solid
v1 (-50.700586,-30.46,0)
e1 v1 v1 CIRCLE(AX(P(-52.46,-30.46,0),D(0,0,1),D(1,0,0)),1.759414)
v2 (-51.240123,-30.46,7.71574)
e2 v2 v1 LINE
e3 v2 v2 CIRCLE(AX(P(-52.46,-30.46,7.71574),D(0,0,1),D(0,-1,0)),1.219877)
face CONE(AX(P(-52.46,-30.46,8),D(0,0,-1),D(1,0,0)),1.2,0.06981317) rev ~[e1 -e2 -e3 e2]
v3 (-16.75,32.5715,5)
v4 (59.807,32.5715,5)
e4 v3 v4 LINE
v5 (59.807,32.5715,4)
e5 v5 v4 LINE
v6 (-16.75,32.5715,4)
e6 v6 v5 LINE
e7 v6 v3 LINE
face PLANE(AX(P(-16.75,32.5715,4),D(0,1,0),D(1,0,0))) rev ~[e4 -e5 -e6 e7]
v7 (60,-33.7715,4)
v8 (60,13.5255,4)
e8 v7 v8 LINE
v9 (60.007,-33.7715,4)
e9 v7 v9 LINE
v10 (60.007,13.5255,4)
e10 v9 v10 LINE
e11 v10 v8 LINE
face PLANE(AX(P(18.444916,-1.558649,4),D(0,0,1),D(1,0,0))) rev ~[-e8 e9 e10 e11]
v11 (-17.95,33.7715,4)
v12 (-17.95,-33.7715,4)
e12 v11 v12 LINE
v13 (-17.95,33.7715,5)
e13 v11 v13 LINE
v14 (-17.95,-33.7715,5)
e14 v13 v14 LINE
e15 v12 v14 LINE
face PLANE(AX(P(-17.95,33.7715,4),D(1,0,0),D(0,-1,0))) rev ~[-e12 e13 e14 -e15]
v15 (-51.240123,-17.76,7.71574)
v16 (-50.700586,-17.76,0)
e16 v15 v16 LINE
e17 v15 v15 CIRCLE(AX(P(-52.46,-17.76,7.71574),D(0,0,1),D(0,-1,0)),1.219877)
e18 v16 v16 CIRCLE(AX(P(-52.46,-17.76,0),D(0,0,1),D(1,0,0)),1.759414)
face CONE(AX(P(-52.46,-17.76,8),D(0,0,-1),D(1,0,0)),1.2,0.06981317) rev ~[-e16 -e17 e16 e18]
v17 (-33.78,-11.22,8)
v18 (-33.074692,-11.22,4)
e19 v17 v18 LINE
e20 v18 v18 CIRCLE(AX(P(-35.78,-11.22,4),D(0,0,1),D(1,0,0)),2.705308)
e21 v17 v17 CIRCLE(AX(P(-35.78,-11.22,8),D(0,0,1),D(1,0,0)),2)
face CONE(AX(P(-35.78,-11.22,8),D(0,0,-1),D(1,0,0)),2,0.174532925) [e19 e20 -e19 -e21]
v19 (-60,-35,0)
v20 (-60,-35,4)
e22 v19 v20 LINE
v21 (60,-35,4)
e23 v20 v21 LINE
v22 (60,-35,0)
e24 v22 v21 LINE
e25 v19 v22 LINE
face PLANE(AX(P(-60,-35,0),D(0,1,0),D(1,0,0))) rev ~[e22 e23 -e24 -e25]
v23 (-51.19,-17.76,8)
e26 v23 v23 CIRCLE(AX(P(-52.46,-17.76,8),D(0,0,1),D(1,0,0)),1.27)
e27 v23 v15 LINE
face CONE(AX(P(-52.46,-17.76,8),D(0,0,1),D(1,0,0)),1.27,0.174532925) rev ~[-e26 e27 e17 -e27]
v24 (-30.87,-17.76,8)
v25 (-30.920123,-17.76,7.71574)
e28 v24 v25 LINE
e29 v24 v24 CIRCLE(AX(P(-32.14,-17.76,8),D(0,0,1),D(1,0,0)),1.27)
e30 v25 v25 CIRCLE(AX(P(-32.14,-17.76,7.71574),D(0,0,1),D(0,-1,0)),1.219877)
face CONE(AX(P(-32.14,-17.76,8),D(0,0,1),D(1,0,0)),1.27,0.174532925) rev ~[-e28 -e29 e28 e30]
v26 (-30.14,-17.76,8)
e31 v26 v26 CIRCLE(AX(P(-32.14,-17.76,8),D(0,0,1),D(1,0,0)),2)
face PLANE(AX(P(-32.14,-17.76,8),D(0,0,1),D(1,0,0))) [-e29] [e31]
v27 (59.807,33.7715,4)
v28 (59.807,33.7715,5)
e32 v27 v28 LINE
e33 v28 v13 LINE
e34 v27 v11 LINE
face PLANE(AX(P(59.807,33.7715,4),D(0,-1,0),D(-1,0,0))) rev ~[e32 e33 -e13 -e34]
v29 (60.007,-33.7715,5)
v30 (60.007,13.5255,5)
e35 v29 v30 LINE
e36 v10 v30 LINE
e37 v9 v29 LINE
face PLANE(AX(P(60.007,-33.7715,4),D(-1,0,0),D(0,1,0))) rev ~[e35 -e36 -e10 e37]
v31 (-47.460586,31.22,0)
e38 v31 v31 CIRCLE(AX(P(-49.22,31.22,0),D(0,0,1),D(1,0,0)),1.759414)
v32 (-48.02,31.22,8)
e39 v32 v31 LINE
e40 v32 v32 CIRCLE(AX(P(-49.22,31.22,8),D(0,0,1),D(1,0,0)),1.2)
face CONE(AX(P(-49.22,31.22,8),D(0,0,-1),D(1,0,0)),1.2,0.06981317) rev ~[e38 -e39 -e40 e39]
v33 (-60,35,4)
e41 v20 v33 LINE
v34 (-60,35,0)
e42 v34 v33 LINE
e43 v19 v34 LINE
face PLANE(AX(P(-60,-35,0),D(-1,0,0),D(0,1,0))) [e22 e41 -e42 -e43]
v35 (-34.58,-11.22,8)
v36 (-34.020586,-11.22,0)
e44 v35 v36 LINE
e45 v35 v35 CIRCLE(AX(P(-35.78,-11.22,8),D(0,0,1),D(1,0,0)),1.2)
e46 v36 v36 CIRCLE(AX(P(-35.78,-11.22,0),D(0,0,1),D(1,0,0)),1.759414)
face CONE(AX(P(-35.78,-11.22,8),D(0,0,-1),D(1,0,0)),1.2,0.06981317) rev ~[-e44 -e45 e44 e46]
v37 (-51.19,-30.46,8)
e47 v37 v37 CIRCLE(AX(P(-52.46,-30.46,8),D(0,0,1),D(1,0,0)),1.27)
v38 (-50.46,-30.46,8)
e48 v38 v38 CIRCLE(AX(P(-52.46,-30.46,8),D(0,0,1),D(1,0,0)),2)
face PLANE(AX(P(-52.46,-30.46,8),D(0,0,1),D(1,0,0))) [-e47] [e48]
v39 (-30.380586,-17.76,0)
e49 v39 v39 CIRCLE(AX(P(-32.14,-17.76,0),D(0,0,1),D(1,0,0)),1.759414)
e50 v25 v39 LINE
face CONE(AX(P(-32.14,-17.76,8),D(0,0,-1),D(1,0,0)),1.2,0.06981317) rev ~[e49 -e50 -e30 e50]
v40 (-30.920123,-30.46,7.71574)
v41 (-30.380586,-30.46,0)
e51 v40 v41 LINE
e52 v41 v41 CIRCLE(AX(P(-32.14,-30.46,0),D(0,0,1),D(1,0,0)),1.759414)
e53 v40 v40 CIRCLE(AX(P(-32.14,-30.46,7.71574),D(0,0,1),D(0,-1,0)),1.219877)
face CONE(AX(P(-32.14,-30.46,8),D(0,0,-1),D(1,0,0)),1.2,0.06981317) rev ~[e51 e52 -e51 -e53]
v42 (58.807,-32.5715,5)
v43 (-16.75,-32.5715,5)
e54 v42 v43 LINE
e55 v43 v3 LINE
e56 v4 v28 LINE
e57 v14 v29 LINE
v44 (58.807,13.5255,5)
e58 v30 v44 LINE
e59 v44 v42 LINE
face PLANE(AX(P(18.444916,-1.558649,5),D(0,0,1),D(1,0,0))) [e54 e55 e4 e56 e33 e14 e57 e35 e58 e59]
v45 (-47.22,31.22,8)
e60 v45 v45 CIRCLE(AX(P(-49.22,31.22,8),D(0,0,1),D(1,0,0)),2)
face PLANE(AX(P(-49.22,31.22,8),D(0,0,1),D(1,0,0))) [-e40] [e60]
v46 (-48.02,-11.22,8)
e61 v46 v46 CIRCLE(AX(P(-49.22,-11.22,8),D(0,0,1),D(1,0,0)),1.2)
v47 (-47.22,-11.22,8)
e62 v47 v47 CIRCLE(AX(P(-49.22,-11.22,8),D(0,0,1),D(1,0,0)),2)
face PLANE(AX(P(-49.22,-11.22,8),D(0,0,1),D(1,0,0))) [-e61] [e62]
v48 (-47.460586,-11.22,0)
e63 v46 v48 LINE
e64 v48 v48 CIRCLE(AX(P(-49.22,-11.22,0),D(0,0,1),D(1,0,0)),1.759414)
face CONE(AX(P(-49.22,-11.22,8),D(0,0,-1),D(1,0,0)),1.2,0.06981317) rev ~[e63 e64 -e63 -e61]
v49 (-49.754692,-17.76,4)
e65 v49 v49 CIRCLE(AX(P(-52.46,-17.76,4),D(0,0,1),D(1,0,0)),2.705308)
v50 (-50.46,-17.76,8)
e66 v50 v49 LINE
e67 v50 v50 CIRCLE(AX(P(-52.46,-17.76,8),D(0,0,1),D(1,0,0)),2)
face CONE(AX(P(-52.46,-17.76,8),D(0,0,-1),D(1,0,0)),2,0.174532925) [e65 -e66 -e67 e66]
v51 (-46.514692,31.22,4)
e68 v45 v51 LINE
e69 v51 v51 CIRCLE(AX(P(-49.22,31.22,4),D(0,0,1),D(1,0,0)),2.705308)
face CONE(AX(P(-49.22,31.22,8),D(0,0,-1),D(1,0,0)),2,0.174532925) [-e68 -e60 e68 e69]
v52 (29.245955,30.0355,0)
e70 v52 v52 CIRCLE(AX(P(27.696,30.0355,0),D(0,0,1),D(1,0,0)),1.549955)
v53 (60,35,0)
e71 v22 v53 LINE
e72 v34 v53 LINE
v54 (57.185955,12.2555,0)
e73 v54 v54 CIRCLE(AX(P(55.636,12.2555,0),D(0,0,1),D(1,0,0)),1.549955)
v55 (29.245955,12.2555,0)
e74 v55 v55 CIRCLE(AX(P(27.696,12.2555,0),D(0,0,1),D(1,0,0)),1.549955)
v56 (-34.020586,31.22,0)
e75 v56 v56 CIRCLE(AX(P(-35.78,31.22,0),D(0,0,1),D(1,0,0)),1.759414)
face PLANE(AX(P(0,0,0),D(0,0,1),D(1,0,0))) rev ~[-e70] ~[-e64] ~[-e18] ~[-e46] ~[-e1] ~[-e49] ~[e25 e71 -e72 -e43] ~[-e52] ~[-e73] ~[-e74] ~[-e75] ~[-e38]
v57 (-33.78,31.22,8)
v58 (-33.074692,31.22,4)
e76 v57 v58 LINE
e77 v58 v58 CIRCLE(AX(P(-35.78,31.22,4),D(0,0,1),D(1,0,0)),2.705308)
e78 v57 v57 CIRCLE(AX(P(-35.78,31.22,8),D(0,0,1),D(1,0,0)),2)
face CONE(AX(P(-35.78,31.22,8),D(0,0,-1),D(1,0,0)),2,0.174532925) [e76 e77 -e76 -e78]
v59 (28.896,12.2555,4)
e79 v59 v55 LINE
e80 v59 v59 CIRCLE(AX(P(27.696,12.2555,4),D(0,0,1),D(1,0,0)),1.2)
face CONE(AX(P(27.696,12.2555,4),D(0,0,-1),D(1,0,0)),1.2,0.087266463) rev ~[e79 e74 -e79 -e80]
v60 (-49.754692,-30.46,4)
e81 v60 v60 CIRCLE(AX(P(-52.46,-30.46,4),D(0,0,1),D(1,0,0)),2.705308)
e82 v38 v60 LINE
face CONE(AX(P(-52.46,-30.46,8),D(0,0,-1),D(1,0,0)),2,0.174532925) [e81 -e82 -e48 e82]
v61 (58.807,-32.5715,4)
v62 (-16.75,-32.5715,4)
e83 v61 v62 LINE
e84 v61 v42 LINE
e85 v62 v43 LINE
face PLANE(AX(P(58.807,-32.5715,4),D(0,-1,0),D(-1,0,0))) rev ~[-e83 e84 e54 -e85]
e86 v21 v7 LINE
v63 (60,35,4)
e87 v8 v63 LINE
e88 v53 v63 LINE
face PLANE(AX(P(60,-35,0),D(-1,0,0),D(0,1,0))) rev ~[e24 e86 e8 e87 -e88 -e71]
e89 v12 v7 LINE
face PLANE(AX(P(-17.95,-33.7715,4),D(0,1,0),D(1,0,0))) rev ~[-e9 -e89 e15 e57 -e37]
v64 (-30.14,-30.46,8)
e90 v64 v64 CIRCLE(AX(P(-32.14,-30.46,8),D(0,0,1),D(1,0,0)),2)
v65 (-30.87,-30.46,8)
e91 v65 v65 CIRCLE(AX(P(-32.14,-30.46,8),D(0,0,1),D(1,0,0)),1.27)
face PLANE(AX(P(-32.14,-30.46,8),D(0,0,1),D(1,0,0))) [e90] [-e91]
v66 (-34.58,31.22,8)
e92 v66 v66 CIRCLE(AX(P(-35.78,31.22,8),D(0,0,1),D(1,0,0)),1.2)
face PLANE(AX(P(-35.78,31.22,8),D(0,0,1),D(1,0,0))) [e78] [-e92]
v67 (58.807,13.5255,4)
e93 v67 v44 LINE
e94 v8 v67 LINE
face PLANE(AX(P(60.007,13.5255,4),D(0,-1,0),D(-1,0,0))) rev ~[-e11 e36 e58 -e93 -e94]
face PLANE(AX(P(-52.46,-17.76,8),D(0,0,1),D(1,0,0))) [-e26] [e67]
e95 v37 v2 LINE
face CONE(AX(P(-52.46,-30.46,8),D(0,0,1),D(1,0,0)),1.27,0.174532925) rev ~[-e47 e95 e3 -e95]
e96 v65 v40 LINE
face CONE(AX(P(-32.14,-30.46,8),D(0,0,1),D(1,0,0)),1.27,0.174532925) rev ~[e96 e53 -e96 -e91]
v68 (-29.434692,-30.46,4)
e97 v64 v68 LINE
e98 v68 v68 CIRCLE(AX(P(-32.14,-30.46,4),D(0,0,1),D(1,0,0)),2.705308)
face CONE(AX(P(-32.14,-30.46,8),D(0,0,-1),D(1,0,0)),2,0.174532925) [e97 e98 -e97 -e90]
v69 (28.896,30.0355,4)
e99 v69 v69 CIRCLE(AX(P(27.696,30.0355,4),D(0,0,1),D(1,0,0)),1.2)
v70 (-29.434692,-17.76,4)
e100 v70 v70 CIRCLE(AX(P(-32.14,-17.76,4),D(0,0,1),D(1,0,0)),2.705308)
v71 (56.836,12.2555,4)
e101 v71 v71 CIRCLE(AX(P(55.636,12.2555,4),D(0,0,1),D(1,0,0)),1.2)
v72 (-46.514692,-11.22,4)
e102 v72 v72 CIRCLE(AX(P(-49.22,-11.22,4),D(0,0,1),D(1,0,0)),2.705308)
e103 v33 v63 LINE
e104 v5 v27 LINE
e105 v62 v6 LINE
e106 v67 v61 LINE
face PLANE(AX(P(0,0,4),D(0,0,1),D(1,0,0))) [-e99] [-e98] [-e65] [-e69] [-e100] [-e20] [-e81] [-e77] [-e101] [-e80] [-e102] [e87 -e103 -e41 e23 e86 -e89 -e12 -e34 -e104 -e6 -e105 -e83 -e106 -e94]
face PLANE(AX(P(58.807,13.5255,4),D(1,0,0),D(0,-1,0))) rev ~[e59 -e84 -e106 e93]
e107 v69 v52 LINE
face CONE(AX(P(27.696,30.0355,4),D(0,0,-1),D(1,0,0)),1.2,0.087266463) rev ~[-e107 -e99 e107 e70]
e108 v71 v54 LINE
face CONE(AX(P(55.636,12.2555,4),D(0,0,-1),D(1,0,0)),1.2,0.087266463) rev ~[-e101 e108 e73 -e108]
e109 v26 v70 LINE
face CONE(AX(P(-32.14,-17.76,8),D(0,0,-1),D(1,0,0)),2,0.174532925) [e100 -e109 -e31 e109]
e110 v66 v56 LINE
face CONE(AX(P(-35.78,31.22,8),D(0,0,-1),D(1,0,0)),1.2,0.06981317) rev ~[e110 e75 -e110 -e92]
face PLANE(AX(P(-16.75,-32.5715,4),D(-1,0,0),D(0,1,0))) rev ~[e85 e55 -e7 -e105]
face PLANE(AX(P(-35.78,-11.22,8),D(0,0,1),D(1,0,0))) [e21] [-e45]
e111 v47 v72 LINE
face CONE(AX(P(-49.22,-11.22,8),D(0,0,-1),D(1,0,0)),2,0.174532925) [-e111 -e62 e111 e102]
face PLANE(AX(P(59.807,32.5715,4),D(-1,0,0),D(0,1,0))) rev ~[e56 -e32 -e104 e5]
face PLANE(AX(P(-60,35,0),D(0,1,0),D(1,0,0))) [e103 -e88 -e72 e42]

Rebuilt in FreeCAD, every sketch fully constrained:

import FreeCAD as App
import Part
import Sketcher

V = App.Vector


def faces_at(feature, points):
    """Names of the faces that lie closest to the given points."""
    faces = feature.Shape.Faces
    near = lambda p: min(range(len(faces)), key=lambda i: faces[i].distToShape(Part.Vertex(*p))[0])
    return sorted({f"Face{near(p) + 1}" for p in points})

doc = App.newDocument("Part")
params = doc.addObject("Spreadsheet::Sheet", "Params")
for row, (alias, value) in enumerate([
    ("sketch1_width", "120 mm"),
    ("sketch1_height", "70 mm"),
    ("pad1_length", "4 mm"),
    ("sketch2_width", "1.2 mm"),
    ("pad2_length", "1 mm"),
    ("sketch3_diameter", "4 mm"),
    ("sketch3_diameter2", "2.54 mm"),
    ("pad3_length", "5 mm"),
    ("draft_angle", "10 deg"),
    ("sketch4_diameter", "4 mm"),
    ("sketch4_diameter2", "2.54 mm"),
    ("pad4_length", "5 mm"),
    ("draft2_angle", "10 deg"),
    ("sketch5_diameter", "4 mm"),
    ("sketch5_diameter2", "2.54 mm"),
    ("pad5_length", "5 mm"),
    ("draft3_angle", "10 deg"),
    ("sketch6_diameter", "4 mm"),
    ("sketch6_diameter2", "2.54 mm"),
    ("pad6_length", "5 mm"),
    ("draft4_angle", "10 deg"),
    ("sketch7_diameter", "4 mm"),
    ("sketch7_diameter2", "2.2 mm"),
    ("pad7_length", "5 mm"),
    ("draft5_angle", "10 deg"),
    ("sketch8_diameter", "4 mm"),
    ("sketch8_diameter2", "2.2 mm"),
    ("pad8_length", "5 mm"),
    ("draft6_angle", "10 deg"),
    ("sketch9_diameter", "4 mm"),
    ("sketch9_diameter2", "2.2 mm"),
    ("pad9_length", "5 mm"),
    ("draft7_angle", "10 deg"),
    ("sketch10_diameter", "4 mm"),
    ("sketch10_diameter2", "2.2 mm"),
    ("pad10_length", "5 mm"),
    ("draft8_angle", "10 deg"),
    ("sketch11_diameter", "2.4 mm"),
    ("pad11_length", "70.927391 mm"),
    ("draft9_angle", "4 deg"),
    ("sketch12_diameter", "2.4 mm"),
    ("pad12_length", "70.927391 mm"),
    ("draft10_angle", "4 deg"),
    ("sketch13_diameter", "2.4 mm"),
    ("pad13_length", "70.927391 mm"),
    ("draft11_angle", "4 deg"),
    ("sketch14_diameter", "2.4 mm"),
    ("pad14_length", "70.927391 mm"),
    ("draft12_angle", "4 deg"),
    ("sketch15_diameter", "2.4 mm"),
    ("pad15_length", "70.927391 mm"),
    ("draft13_angle", "4 deg"),
    ("sketch16_diameter", "2.4 mm"),
    ("pad16_length", "70.927391 mm"),
    ("draft14_angle", "4 deg"),
    ("sketch17_diameter", "2.4 mm"),
    ("pad17_length", "70.927391 mm"),
    ("draft15_angle", "4 deg"),
    ("sketch18_diameter", "2.4 mm"),
    ("pad18_length", "70.927391 mm"),
    ("draft16_angle", "4 deg"),
    ("sketch19_diameter", "2.4 mm"),
    ("pad19_length", "70.583332 mm"),
    ("draft17_angle", "5 deg"),
    ("sketch20_diameter", "2.4 mm"),
    ("pad20_length", "70.583332 mm"),
    ("draft18_angle", "5 deg"),
    ("sketch21_diameter", "2.4 mm"),
    ("pad21_length", "70.583332 mm"),
    ("draft19_angle", "5 deg"),
], start=1):
    params.set(f"A{row}", alias)
    params.set(f"B{row}", "=" + value)
    params.setAlias(f"B{row}", alias)

body = doc.addObject("PartDesign::Body", "Body")

# Sketch on XY plane
sketch1 = body.newObject("Sketcher::SketchObject", "Sketch")
sketch1.AttachmentSupport = (doc.getObject("XY_Plane"), [""])
sketch1.MapMode = "FlatFace"
sketch1.addGeometry([
    Part.LineSegment(V(-60, 35, 0), V(-60, -35, 0)),
    Part.LineSegment(V(-60, -35, 0), V(60, -35, 0)),
    Part.LineSegment(V(60, -35, 0), V(60, 35, 0)),
    Part.LineSegment(V(60, 35, 0), V(-60, 35, 0)),
], False)
sketch1.addConstraint([
    Sketcher.Constraint("Coincident", 0, 2, 1, 1),
    Sketcher.Constraint("Coincident", 1, 2, 2, 1),
    Sketcher.Constraint("Coincident", 2, 2, 3, 1),
    Sketcher.Constraint("Coincident", 3, 2, 0, 1),
    Sketcher.Constraint("Vertical", 0),
    Sketcher.Constraint("Horizontal", 1),
    Sketcher.Constraint("Vertical", 2),
    Sketcher.Constraint("Horizontal", 3),
    Sketcher.Constraint("Symmetric", 0, 2, 2, 2, -1, 1),
    Sketcher.Constraint("DistanceX", 1, 1, 1, 2, 120.0),
    Sketcher.Constraint("DistanceY", 0, 2, 0, 1, 70.0),
])
sketch1.setExpression("Constraints[9]", "Params.sketch1_width")
sketch1.setExpression("Constraints[10]", "Params.sketch1_height")
pad1 = body.newObject("PartDesign::Pad", "Pad")
pad1.Profile = sketch1
pad1.setExpression("Length", "Params.pad1_length")

# Sketch on XY plane
sketch2 = body.newObject("Sketcher::SketchObject", "Sketch001")
sketch2.AttachmentSupport = (doc.getObject("XY_Plane"), [""])
sketch2.MapMode = "FlatFace"
sketch2.AttachmentOffset = App.Placement(V(0, 0, 4), App.Rotation())
sketch2.addGeometry([
    Part.LineSegment(V(59.8, 33.8, 0), V(-17.9, 33.8, 0)),  # 0
    Part.LineSegment(V(-17.9, 33.8, 0), V(-17.9, -33.8, 0)),  # 1
    Part.LineSegment(V(-17.9, -33.8, 0), V(60, -33.8, 0)),  # 2
    Part.LineSegment(V(60, -33.8, 0), V(60, 13.5, 0)),  # 3
    Part.LineSegment(V(60, 13.5, 0), V(58.8, 13.5, 0)),  # 4
    Part.LineSegment(V(58.8, 13.5, 0), V(58.8, -32.6, 0)),  # 5
    Part.LineSegment(V(58.8, -32.6, 0), V(-16.8, -32.6, 0)),  # 6
    Part.LineSegment(V(-16.8, -32.6, 0), V(-16.8, 32.6, 0)),  # 7
    Part.LineSegment(V(-16.8, 32.6, 0), V(59.8, 32.6, 0)),  # 8
    Part.LineSegment(V(59.8, 32.6, 0), V(59.8, 33.8, 0)),  # 9
], False)
sketch2.addConstraint([
    Sketcher.Constraint("Coincident", 0, 2, 1, 1),
    Sketcher.Constraint("Coincident", 1, 2, 2, 1),
    Sketcher.Constraint("Coincident", 2, 2, 3, 1),
    Sketcher.Constraint("Coincident", 3, 2, 4, 1),
    Sketcher.Constraint("Coincident", 4, 2, 5, 1),
    Sketcher.Constraint("Coincident", 5, 2, 6, 1),
    Sketcher.Constraint("Coincident", 6, 2, 7, 1),
    Sketcher.Constraint("Coincident", 7, 2, 8, 1),
    Sketcher.Constraint("Coincident", 8, 2, 9, 1),
    Sketcher.Constraint("Coincident", 9, 2, 0, 1),
    Sketcher.Constraint("Horizontal", 0),
    Sketcher.Constraint("Vertical", 1),
    Sketcher.Constraint("Horizontal", 2),
    Sketcher.Constraint("Vertical", 3),
    Sketcher.Constraint("Horizontal", 4),
    Sketcher.Constraint("Vertical", 5),
    Sketcher.Constraint("Horizontal", 6),
    Sketcher.Constraint("Vertical", 7),
    Sketcher.Constraint("Horizontal", 8),
    Sketcher.Constraint("Vertical", 9),
    Sketcher.Constraint("Equal", 4, 9),
    Sketcher.Constraint("DistanceX", 4, 2, 4, 1, 1.2),
    Sketcher.Constraint("DistanceX", 4, 2, 8, 2, 1.0),
    Sketcher.Constraint("DistanceY", 2, 2, 5, 2, 1.2),
    Sketcher.Constraint("DistanceX", 1, 2, 6, 2, 1.2),
    Sketcher.Constraint("DistanceX", 0, 2, 0, 1, 77.757),
    Sketcher.Constraint("DistanceY", 1, 2, 1, 1, 67.543),
    Sketcher.Constraint("DistanceY", 3, 1, 3, 2, 47.297),
    Sketcher.Constraint("DistanceX", 0, 2, -1, 1, 17.95),
    Sketcher.Constraint("DistanceY", -1, 1, 0, 2, 33.7715),
])
sketch2.setExpression("Constraints[21]", "Params.sketch2_width")
pad2 = body.newObject("PartDesign::Pad", "Pad001")
pad2.Profile = sketch2
pad2.setExpression("Length", "Params.pad2_length")
body2 = doc.addObject("PartDesign::Body", "Body001")

# Sketch on XY plane
sketch3 = body2.newObject("Sketcher::SketchObject", "Sketch002")
sketch3.AttachmentSupport = (doc.getObject("XY_Plane001"), [""])
sketch3.MapMode = "FlatFace"
sketch3.AttachmentOffset = App.Placement(V(0, 0, 8), App.Rotation())
sketch3.addGeometry([
    Part.Circle(V(-52.5, -17.8, 0), V(0, 0, 1), 2),
    Part.Circle(V(-52.5, -17.8, 0), V(0, 0, 1), 1.3),
], False)
sketch3.addConstraint([
    Sketcher.Constraint("Coincident", 1, 3, 0, 3),
    Sketcher.Constraint("Diameter", 0, 4.0),
    Sketcher.Constraint("Diameter", 1, 2.54),
    Sketcher.Constraint("DistanceX", 0, 3, -1, 1, 52.46),
    Sketcher.Constraint("DistanceY", 0, 3, -1, 1, 17.76),
])
sketch3.setExpression("Constraints[1]", "Params.sketch3_diameter")
sketch3.setExpression("Constraints[2]", "Params.sketch3_diameter2")
pad3 = body2.newObject("PartDesign::Pad", "Pad002")
pad3.Profile = sketch3
pad3.setExpression("Length", "Params.pad3_length")
pad3.Reversed = True
doc.recompute()

datumplane = body2.newObject("PartDesign::Plane", "DatumPlane")
datumplane.AttachmentSupport = (doc.getObject("XY_Plane001"), [""])
datumplane.MapMode = "FlatFace"
datumplane.AttachmentOffset = App.Placement(V(0, 0, 8), App.Rotation())
draft = body2.newObject("PartDesign::Draft", "Draft")
draft.Base = (pad3, faces_at(pad3, [(-54.46, -17.76, 5.5), (-53.73, -17.76, 5.5)]))
draft.NeutralPlane = (datumplane, [""])
draft.setExpression("Angle", "Params.draft_angle")
draft.Reversed = False
doc.recompute()

boolean = body.newObject("PartDesign::Boolean", "Boolean")
boolean.Type = "Fuse"
boolean.addObjects([body2])
body3 = doc.addObject("PartDesign::Body", "Body002")

# Sketch on XY plane
sketch4 = body3.newObject("Sketcher::SketchObject", "Sketch003")
sketch4.AttachmentSupport = (doc.getObject("XY_Plane002"), [""])
sketch4.MapMode = "FlatFace"
sketch4.AttachmentOffset = App.Placement(V(0, 0, 8), App.Rotation())
sketch4.addGeometry([
    Part.Circle(V(-32.1, -17.8, 0), V(0, 0, 1), 2),
    Part.Circle(V(-32.1, -17.8, 0), V(0, 0, 1), 1.3),
], False)
sketch4.addConstraint([
    Sketcher.Constraint("Coincident", 1, 3, 0, 3),
    Sketcher.Constraint("Diameter", 0, 4.0),
    Sketcher.Constraint("Diameter", 1, 2.54),
    Sketcher.Constraint("DistanceX", 0, 3, -1, 1, 32.14),
    Sketcher.Constraint("DistanceY", 0, 3, -1, 1, 17.76),
])
sketch4.setExpression("Constraints[1]", "Params.sketch4_diameter")
sketch4.setExpression("Constraints[2]", "Params.sketch4_diameter2")
pad4 = body3.newObject("PartDesign::Pad", "Pad003")
pad4.Profile = sketch4
pad4.setExpression("Length", "Params.pad4_length")
pad4.Reversed = True
doc.recompute()

datumplane2 = body3.newObject("PartDesign::Plane", "DatumPlane001")
datumplane2.AttachmentSupport = (doc.getObject("XY_Plane002"), [""])
datumplane2.MapMode = "FlatFace"
datumplane2.AttachmentOffset = App.Placement(V(0, 0, 8), App.Rotation())
draft2 = body3.newObject("PartDesign::Draft", "Draft001")
draft2.Base = (pad4, faces_at(pad4, [(-34.14, -17.76, 5.5), (-33.41, -17.76, 5.5)]))
draft2.NeutralPlane = (datumplane2, [""])
draft2.setExpression("Angle", "Params.draft2_angle")
draft2.Reversed = False
doc.recompute()

boolean2 = body.newObject("PartDesign::Boolean", "Boolean001")
boolean2.Type = "Fuse"
boolean2.addObjects([body3])
body4 = doc.addObject("PartDesign::Body", "Body003")

# Sketch on XY plane
sketch5 = body4.newObject("Sketcher::SketchObject", "Sketch004")
sketch5.AttachmentSupport = (doc.getObject("XY_Plane003"), [""])
sketch5.MapMode = "FlatFace"
sketch5.AttachmentOffset = App.Placement(V(0, 0, 8), App.Rotation())
sketch5.addGeometry([
    Part.Circle(V(-52.5, -30.5, 0), V(0, 0, 1), 2),
    Part.Circle(V(-52.5, -30.5, 0), V(0, 0, 1), 1.3),
], False)
sketch5.addConstraint([
    Sketcher.Constraint("Coincident", 1, 3, 0, 3),
    Sketcher.Constraint("Diameter", 0, 4.0),
    Sketcher.Constraint("Diameter", 1, 2.54),
    Sketcher.Constraint("DistanceX", 0, 3, -1, 1, 52.46),
    Sketcher.Constraint("DistanceY", 0, 3, -1, 1, 30.46),
])
sketch5.setExpression("Constraints[1]", "Params.sketch5_diameter")
sketch5.setExpression("Constraints[2]", "Params.sketch5_diameter2")
pad5 = body4.newObject("PartDesign::Pad", "Pad004")
pad5.Profile = sketch5
pad5.setExpression("Length", "Params.pad5_length")
pad5.Reversed = True
doc.recompute()

datumplane3 = body4.newObject("PartDesign::Plane", "DatumPlane002")
datumplane3.AttachmentSupport = (doc.getObject("XY_Plane003"), [""])
datumplane3.MapMode = "FlatFace"
datumplane3.AttachmentOffset = App.Placement(V(0, 0, 8), App.Rotation())
draft3 = body4.newObject("PartDesign::Draft", "Draft002")
draft3.Base = (pad5, faces_at(pad5, [(-54.46, -30.46, 5.5), (-53.73, -30.46, 5.5)]))
draft3.NeutralPlane = (datumplane3, [""])
draft3.setExpression("Angle", "Params.draft3_angle")
draft3.Reversed = False
doc.recompute()

boolean3 = body.newObject("PartDesign::Boolean", "Boolean002")
boolean3.Type = "Fuse"
boolean3.addObjects([body4])
body5 = doc.addObject("PartDesign::Body", "Body004")

# Sketch on XY plane
sketch6 = body5.newObject("Sketcher::SketchObject", "Sketch005")
sketch6.AttachmentSupport = (doc.getObject("XY_Plane004"), [""])
sketch6.MapMode = "FlatFace"
sketch6.AttachmentOffset = App.Placement(V(0, 0, 8), App.Rotation())
sketch6.addGeometry([
    Part.Circle(V(-32.1, -30.5, 0), V(0, 0, 1), 2),
    Part.Circle(V(-32.1, -30.5, 0), V(0, 0, 1), 1.3),
], False)
sketch6.addConstraint([
    Sketcher.Constraint("Coincident", 1, 3, 0, 3),
    Sketcher.Constraint("Diameter", 0, 4.0),
    Sketcher.Constraint("Diameter", 1, 2.54),
    Sketcher.Constraint("DistanceX", 0, 3, -1, 1, 32.14),
    Sketcher.Constraint("DistanceY", 0, 3, -1, 1, 30.46),
])
sketch6.setExpression("Constraints[1]", "Params.sketch6_diameter")
sketch6.setExpression("Constraints[2]", "Params.sketch6_diameter2")
pad6 = body5.newObject("PartDesign::Pad", "Pad005")
pad6.Profile = sketch6
pad6.setExpression("Length", "Params.pad6_length")
pad6.Reversed = True
doc.recompute()

datumplane4 = body5.newObject("PartDesign::Plane", "DatumPlane003")
datumplane4.AttachmentSupport = (doc.getObject("XY_Plane004"), [""])
datumplane4.MapMode = "FlatFace"
datumplane4.AttachmentOffset = App.Placement(V(0, 0, 8), App.Rotation())
draft4 = body5.newObject("PartDesign::Draft", "Draft003")
draft4.Base = (pad6, faces_at(pad6, [(-34.14, -30.46, 5.5), (-33.41, -30.46, 5.5)]))
draft4.NeutralPlane = (datumplane4, [""])
draft4.setExpression("Angle", "Params.draft4_angle")
draft4.Reversed = False
doc.recompute()

boolean4 = body.newObject("PartDesign::Boolean", "Boolean003")
boolean4.Type = "Fuse"
boolean4.addObjects([body5])
body6 = doc.addObject("PartDesign::Body", "Body005")

# Sketch on XY plane
sketch7 = body6.newObject("Sketcher::SketchObject", "Sketch006")
sketch7.AttachmentSupport = (doc.getObject("XY_Plane005"), [""])
sketch7.MapMode = "FlatFace"
sketch7.AttachmentOffset = App.Placement(V(0, 0, 8), App.Rotation())
sketch7.addGeometry([
    Part.Circle(V(-49.2, 31.2, 0), V(0, 0, 1), 2),
    Part.Circle(V(-49.2, 31.2, 0), V(0, 0, 1), 1.1),
], False)
sketch7.addConstraint([
    Sketcher.Constraint("Coincident", 1, 3, 0, 3),
    Sketcher.Constraint("Diameter", 0, 4.0),
    Sketcher.Constraint("Diameter", 1, 2.2),
    Sketcher.Constraint("DistanceX", 0, 3, -1, 1, 49.22),
    Sketcher.Constraint("DistanceY", -1, 1, 0, 3, 31.22),
])
sketch7.setExpression("Constraints[1]", "Params.sketch7_diameter")
sketch7.setExpression("Constraints[2]", "Params.sketch7_diameter2")
pad7 = body6.newObject("PartDesign::Pad", "Pad006")
pad7.Profile = sketch7
pad7.setExpression("Length", "Params.pad7_length")
pad7.Reversed = True
doc.recompute()

datumplane5 = body6.newObject("PartDesign::Plane", "DatumPlane004")
datumplane5.AttachmentSupport = (doc.getObject("XY_Plane005"), [""])
datumplane5.MapMode = "FlatFace"
datumplane5.AttachmentOffset = App.Placement(V(0, 0, 8), App.Rotation())
draft5 = body6.newObject("PartDesign::Draft", "Draft004")
draft5.Base = (pad7, faces_at(pad7, [(-51.22, 31.22, 5.5), (-50.32, 31.22, 5.5)]))
draft5.NeutralPlane = (datumplane5, [""])
draft5.setExpression("Angle", "Params.draft5_angle")
draft5.Reversed = False
doc.recompute()

boolean5 = body.newObject("PartDesign::Boolean", "Boolean004")
boolean5.Type = "Fuse"
boolean5.addObjects([body6])
body7 = doc.addObject("PartDesign::Body", "Body006")

# Sketch on XY plane
sketch8 = body7.newObject("Sketcher::SketchObject", "Sketch007")
sketch8.AttachmentSupport = (doc.getObject("XY_Plane006"), [""])
sketch8.MapMode = "FlatFace"
sketch8.AttachmentOffset = App.Placement(V(0, 0, 8), App.Rotation())
sketch8.addGeometry([
    Part.Circle(V(-35.8, 31.2, 0), V(0, 0, 1), 2),
    Part.Circle(V(-35.8, 31.2, 0), V(0, 0, 1), 1.1),
], False)
sketch8.addConstraint([
    Sketcher.Constraint("Coincident", 1, 3, 0, 3),
    Sketcher.Constraint("Diameter", 0, 4.0),
    Sketcher.Constraint("Diameter", 1, 2.2),
    Sketcher.Constraint("DistanceX", 0, 3, -1, 1, 35.78),
    Sketcher.Constraint("DistanceY", -1, 1, 0, 3, 31.22),
])
sketch8.setExpression("Constraints[1]", "Params.sketch8_diameter")
sketch8.setExpression("Constraints[2]", "Params.sketch8_diameter2")
pad8 = body7.newObject("PartDesign::Pad", "Pad007")
pad8.Profile = sketch8
pad8.setExpression("Length", "Params.pad8_length")
pad8.Reversed = True
doc.recompute()

datumplane6 = body7.newObject("PartDesign::Plane", "DatumPlane005")
datumplane6.AttachmentSupport = (doc.getObject("XY_Plane006"), [""])
datumplane6.MapMode = "FlatFace"
datumplane6.AttachmentOffset = App.Placement(V(0, 0, 8), App.Rotation())
draft6 = body7.newObject("PartDesign::Draft", "Draft005")
draft6.Base = (pad8, faces_at(pad8, [(-37.78, 31.22, 5.5), (-36.88, 31.22, 5.5)]))
draft6.NeutralPlane = (datumplane6, [""])
draft6.setExpression("Angle", "Params.draft6_angle")
draft6.Reversed = False
doc.recompute()

boolean6 = body.newObject("PartDesign::Boolean", "Boolean005")
boolean6.Type = "Fuse"
boolean6.addObjects([body7])
body8 = doc.addObject("PartDesign::Body", "Body007")

# Sketch on XY plane
sketch9 = body8.newObject("Sketcher::SketchObject", "Sketch008")
sketch9.AttachmentSupport = (doc.getObject("XY_Plane007"), [""])
sketch9.MapMode = "FlatFace"
sketch9.AttachmentOffset = App.Placement(V(0, 0, 8), App.Rotation())
sketch9.addGeometry([
    Part.Circle(V(-49.2, -11.2, 0), V(0, 0, 1), 2),
    Part.Circle(V(-49.2, -11.2, 0), V(0, 0, 1), 1.1),
], False)
sketch9.addConstraint([
    Sketcher.Constraint("Coincident", 1, 3, 0, 3),
    Sketcher.Constraint("Diameter", 0, 4.0),
    Sketcher.Constraint("Diameter", 1, 2.2),
    Sketcher.Constraint("DistanceX", 0, 3, -1, 1, 49.22),
    Sketcher.Constraint("DistanceY", 0, 3, -1, 1, 11.22),
])
sketch9.setExpression("Constraints[1]", "Params.sketch9_diameter")
sketch9.setExpression("Constraints[2]", "Params.sketch9_diameter2")
pad9 = body8.newObject("PartDesign::Pad", "Pad008")
pad9.Profile = sketch9
pad9.setExpression("Length", "Params.pad9_length")
pad9.Reversed = True
doc.recompute()

datumplane7 = body8.newObject("PartDesign::Plane", "DatumPlane006")
datumplane7.AttachmentSupport = (doc.getObject("XY_Plane007"), [""])
datumplane7.MapMode = "FlatFace"
datumplane7.AttachmentOffset = App.Placement(V(0, 0, 8), App.Rotation())
draft7 = body8.newObject("PartDesign::Draft", "Draft006")
draft7.Base = (pad9, faces_at(pad9, [(-51.22, -11.22, 5.5), (-50.32, -11.22, 5.5)]))
draft7.NeutralPlane = (datumplane7, [""])
draft7.setExpression("Angle", "Params.draft7_angle")
draft7.Reversed = False
doc.recompute()

boolean7 = body.newObject("PartDesign::Boolean", "Boolean006")
boolean7.Type = "Fuse"
boolean7.addObjects([body8])
body9 = doc.addObject("PartDesign::Body", "Body008")

# Sketch on XY plane
sketch10 = body9.newObject("Sketcher::SketchObject", "Sketch009")
sketch10.AttachmentSupport = (doc.getObject("XY_Plane008"), [""])
sketch10.MapMode = "FlatFace"
sketch10.AttachmentOffset = App.Placement(V(0, 0, 8), App.Rotation())
sketch10.addGeometry([
    Part.Circle(V(-35.8, -11.2, 0), V(0, 0, 1), 2),
    Part.Circle(V(-35.8, -11.2, 0), V(0, 0, 1), 1.1),
], False)
sketch10.addConstraint([
    Sketcher.Constraint("Coincident", 1, 3, 0, 3),
    Sketcher.Constraint("Diameter", 0, 4.0),
    Sketcher.Constraint("Diameter", 1, 2.2),
    Sketcher.Constraint("DistanceX", 0, 3, -1, 1, 35.78),
    Sketcher.Constraint("DistanceY", 0, 3, -1, 1, 11.22),
])
sketch10.setExpression("Constraints[1]", "Params.sketch10_diameter")
sketch10.setExpression("Constraints[2]", "Params.sketch10_diameter2")
pad10 = body9.newObject("PartDesign::Pad", "Pad009")
pad10.Profile = sketch10
pad10.setExpression("Length", "Params.pad10_length")
pad10.Reversed = True
doc.recompute()

datumplane8 = body9.newObject("PartDesign::Plane", "DatumPlane007")
datumplane8.AttachmentSupport = (doc.getObject("XY_Plane008"), [""])
datumplane8.MapMode = "FlatFace"
datumplane8.AttachmentOffset = App.Placement(V(0, 0, 8), App.Rotation())
draft8 = body9.newObject("PartDesign::Draft", "Draft007")
draft8.Base = (pad10, faces_at(pad10, [(-37.78, -11.22, 5.5), (-36.88, -11.22, 5.5)]))
draft8.NeutralPlane = (datumplane8, [""])
draft8.setExpression("Angle", "Params.draft8_angle")
draft8.Reversed = False
doc.recompute()

boolean8 = body.newObject("PartDesign::Boolean", "Boolean007")
boolean8.Type = "Fuse"
boolean8.addObjects([body9])
body10 = doc.addObject("PartDesign::Body", "Body009")

# Sketch on XY plane
sketch11 = body10.newObject("Sketcher::SketchObject", "Sketch010")
sketch11.AttachmentSupport = (doc.getObject("XY_Plane009"), [""])
sketch11.MapMode = "FlatFace"
sketch11.AttachmentOffset = App.Placement(V(0, 0, 8), App.Rotation())
sketch11.addGeometry(Part.Circle(V(-52.5, -17.8, 0), V(0, 0, 1), 1.2), False)
sketch11.addConstraint([
    Sketcher.Constraint("Diameter", 0, 2.4),
    Sketcher.Constraint("DistanceX", 0, 3, -1, 1, 52.46),
    Sketcher.Constraint("DistanceY", 0, 3, -1, 1, 17.76),
])
sketch11.setExpression("Constraints[0]", "Params.sketch11_diameter")
pad11 = body10.newObject("PartDesign::Pad", "Pad010")
pad11.Profile = sketch11
pad11.setExpression("Length", "Params.pad11_length")
pad11.Reversed = True
doc.recompute()

datumplane9 = body10.newObject("PartDesign::Plane", "DatumPlane008")
datumplane9.AttachmentSupport = (doc.getObject("XY_Plane009"), [""])
datumplane9.MapMode = "FlatFace"
datumplane9.AttachmentOffset = App.Placement(V(0, 0, 8), App.Rotation())
draft9 = body10.newObject("PartDesign::Draft", "Draft008")
draft9.Base = (pad11, faces_at(pad11, [(-53.66, -17.76, -27.464)]))
draft9.NeutralPlane = (datumplane9, [""])
draft9.setExpression("Angle", "Params.draft9_angle")
draft9.Reversed = False
doc.recompute()

boolean9 = body.newObject("PartDesign::Boolean", "Boolean008")
boolean9.Type = "Cut"
boolean9.addObjects([body10])
body11 = doc.addObject("PartDesign::Body", "Body010")

# Sketch on XY plane
sketch12 = body11.newObject("Sketcher::SketchObject", "Sketch011")
sketch12.AttachmentSupport = (doc.getObject("XY_Plane010"), [""])
sketch12.MapMode = "FlatFace"
sketch12.AttachmentOffset = App.Placement(V(0, 0, 8), App.Rotation())
sketch12.addGeometry(Part.Circle(V(-32.1, -17.8, 0), V(0, 0, 1), 1.2), False)
sketch12.addConstraint([
    Sketcher.Constraint("Diameter", 0, 2.4),
    Sketcher.Constraint("DistanceX", 0, 3, -1, 1, 32.14),
    Sketcher.Constraint("DistanceY", 0, 3, -1, 1, 17.76),
])
sketch12.setExpression("Constraints[0]", "Params.sketch12_diameter")
pad12 = body11.newObject("PartDesign::Pad", "Pad011")
pad12.Profile = sketch12
pad12.setExpression("Length", "Params.pad12_length")
pad12.Reversed = True
doc.recompute()

datumplane10 = body11.newObject("PartDesign::Plane", "DatumPlane009")
datumplane10.AttachmentSupport = (doc.getObject("XY_Plane010"), [""])
datumplane10.MapMode = "FlatFace"
datumplane10.AttachmentOffset = App.Placement(V(0, 0, 8), App.Rotation())
draft10 = body11.newObject("PartDesign::Draft", "Draft009")
draft10.Base = (pad12, faces_at(pad12, [(-33.34, -17.76, -27.464)]))
draft10.NeutralPlane = (datumplane10, [""])
draft10.setExpression("Angle", "Params.draft10_angle")
draft10.Reversed = False
doc.recompute()

boolean10 = body.newObject("PartDesign::Boolean", "Boolean009")
boolean10.Type = "Cut"
boolean10.addObjects([body11])
body12 = doc.addObject("PartDesign::Body", "Body011")

# Sketch on XY plane
sketch13 = body12.newObject("Sketcher::SketchObject", "Sketch012")
sketch13.AttachmentSupport = (doc.getObject("XY_Plane011"), [""])
sketch13.MapMode = "FlatFace"
sketch13.AttachmentOffset = App.Placement(V(0, 0, 8), App.Rotation())
sketch13.addGeometry(Part.Circle(V(-52.5, -30.5, 0), V(0, 0, 1), 1.2), False)
sketch13.addConstraint([
    Sketcher.Constraint("Diameter", 0, 2.4),
    Sketcher.Constraint("DistanceX", 0, 3, -1, 1, 52.46),
    Sketcher.Constraint("DistanceY", 0, 3, -1, 1, 30.46),
])
sketch13.setExpression("Constraints[0]", "Params.sketch13_diameter")
pad13 = body12.newObject("PartDesign::Pad", "Pad012")
pad13.Profile = sketch13
pad13.setExpression("Length", "Params.pad13_length")
pad13.Reversed = True
doc.recompute()

datumplane11 = body12.newObject("PartDesign::Plane", "DatumPlane010")
datumplane11.AttachmentSupport = (doc.getObject("XY_Plane011"), [""])
datumplane11.MapMode = "FlatFace"
datumplane11.AttachmentOffset = App.Placement(V(0, 0, 8), App.Rotation())
draft11 = body12.newObject("PartDesign::Draft", "Draft010")
draft11.Base = (pad13, faces_at(pad13, [(-53.66, -30.46, -27.464)]))
draft11.NeutralPlane = (datumplane11, [""])
draft11.setExpression("Angle", "Params.draft11_angle")
draft11.Reversed = False
doc.recompute()

boolean11 = body.newObject("PartDesign::Boolean", "Boolean010")
boolean11.Type = "Cut"
boolean11.addObjects([body12])
body13 = doc.addObject("PartDesign::Body", "Body012")

# Sketch on XY plane
sketch14 = body13.newObject("Sketcher::SketchObject", "Sketch013")
sketch14.AttachmentSupport = (doc.getObject("XY_Plane012"), [""])
sketch14.MapMode = "FlatFace"
sketch14.AttachmentOffset = App.Placement(V(0, 0, 8), App.Rotation())
sketch14.addGeometry(Part.Circle(V(-32.1, -30.5, 0), V(0, 0, 1), 1.2), False)
sketch14.addConstraint([
    Sketcher.Constraint("Diameter", 0, 2.4),
    Sketcher.Constraint("DistanceX", 0, 3, -1, 1, 32.14),
    Sketcher.Constraint("DistanceY", 0, 3, -1, 1, 30.46),
])
sketch14.setExpression("Constraints[0]", "Params.sketch14_diameter")
pad14 = body13.newObject("PartDesign::Pad", "Pad013")
pad14.Profile = sketch14
pad14.setExpression("Length", "Params.pad14_length")
pad14.Reversed = True
doc.recompute()

datumplane12 = body13.newObject("PartDesign::Plane", "DatumPlane011")
datumplane12.AttachmentSupport = (doc.getObject("XY_Plane012"), [""])
datumplane12.MapMode = "FlatFace"
datumplane12.AttachmentOffset = App.Placement(V(0, 0, 8), App.Rotation())
draft12 = body13.newObject("PartDesign::Draft", "Draft011")
draft12.Base = (pad14, faces_at(pad14, [(-33.34, -30.46, -27.464)]))
draft12.NeutralPlane = (datumplane12, [""])
draft12.setExpression("Angle", "Params.draft12_angle")
draft12.Reversed = False
doc.recompute()

boolean12 = body.newObject("PartDesign::Boolean", "Boolean011")
boolean12.Type = "Cut"
boolean12.addObjects([body13])
body14 = doc.addObject("PartDesign::Body", "Body013")

# Sketch on XY plane
sketch15 = body14.newObject("Sketcher::SketchObject", "Sketch014")
sketch15.AttachmentSupport = (doc.getObject("XY_Plane013"), [""])
sketch15.MapMode = "FlatFace"
sketch15.AttachmentOffset = App.Placement(V(0, 0, 8), App.Rotation())
sketch15.addGeometry(Part.Circle(V(-49.2, 31.2, 0), V(0, 0, 1), 1.2), False)
sketch15.addConstraint([
    Sketcher.Constraint("Diameter", 0, 2.4),
    Sketcher.Constraint("DistanceX", 0, 3, -1, 1, 49.22),
    Sketcher.Constraint("DistanceY", -1, 1, 0, 3, 31.22),
])
sketch15.setExpression("Constraints[0]", "Params.sketch15_diameter")
pad15 = body14.newObject("PartDesign::Pad", "Pad014")
pad15.Profile = sketch15
pad15.setExpression("Length", "Params.pad15_length")
pad15.Reversed = True
doc.recompute()

datumplane13 = body14.newObject("PartDesign::Plane", "DatumPlane012")
datumplane13.AttachmentSupport = (doc.getObject("XY_Plane013"), [""])
datumplane13.MapMode = "FlatFace"
datumplane13.AttachmentOffset = App.Placement(V(0, 0, 8), App.Rotation())
draft13 = body14.newObject("PartDesign::Draft", "Draft012")
draft13.Base = (pad15, faces_at(pad15, [(-50.42, 31.22, -27.464)]))
draft13.NeutralPlane = (datumplane13, [""])
draft13.setExpression("Angle", "Params.draft13_angle")
draft13.Reversed = False
doc.recompute()

boolean13 = body.newObject("PartDesign::Boolean", "Boolean012")
boolean13.Type = "Cut"
boolean13.addObjects([body14])
body15 = doc.addObject("PartDesign::Body", "Body014")

# Sketch on XY plane
sketch16 = body15.newObject("Sketcher::SketchObject", "Sketch015")
sketch16.AttachmentSupport = (doc.getObject("XY_Plane014"), [""])
sketch16.MapMode = "FlatFace"
sketch16.AttachmentOffset = App.Placement(V(0, 0, 8), App.Rotation())
sketch16.addGeometry(Part.Circle(V(-35.8, 31.2, 0), V(0, 0, 1), 1.2), False)
sketch16.addConstraint([
    Sketcher.Constraint("Diameter", 0, 2.4),
    Sketcher.Constraint("DistanceX", 0, 3, -1, 1, 35.78),
    Sketcher.Constraint("DistanceY", -1, 1, 0, 3, 31.22),
])
sketch16.setExpression("Constraints[0]", "Params.sketch16_diameter")
pad16 = body15.newObject("PartDesign::Pad", "Pad015")
pad16.Profile = sketch16
pad16.setExpression("Length", "Params.pad16_length")
pad16.Reversed = True
doc.recompute()

datumplane14 = body15.newObject("PartDesign::Plane", "DatumPlane013")
datumplane14.AttachmentSupport = (doc.getObject("XY_Plane014"), [""])
datumplane14.MapMode = "FlatFace"
datumplane14.AttachmentOffset = App.Placement(V(0, 0, 8), App.Rotation())
draft14 = body15.newObject("PartDesign::Draft", "Draft013")
draft14.Base = (pad16, faces_at(pad16, [(-36.98, 31.22, -27.464)]))
draft14.NeutralPlane = (datumplane14, [""])
draft14.setExpression("Angle", "Params.draft14_angle")
draft14.Reversed = False
doc.recompute()

boolean14 = body.newObject("PartDesign::Boolean", "Boolean013")
boolean14.Type = "Cut"
boolean14.addObjects([body15])
body16 = doc.addObject("PartDesign::Body", "Body015")

# Sketch on XY plane
sketch17 = body16.newObject("Sketcher::SketchObject", "Sketch016")
sketch17.AttachmentSupport = (doc.getObject("XY_Plane015"), [""])
sketch17.MapMode = "FlatFace"
sketch17.AttachmentOffset = App.Placement(V(0, 0, 8), App.Rotation())
sketch17.addGeometry(Part.Circle(V(-49.2, -11.2, 0), V(0, 0, 1), 1.2), False)
sketch17.addConstraint([
    Sketcher.Constraint("Diameter", 0, 2.4),
    Sketcher.Constraint("DistanceX", 0, 3, -1, 1, 49.22),
    Sketcher.Constraint("DistanceY", 0, 3, -1, 1, 11.22),
])
sketch17.setExpression("Constraints[0]", "Params.sketch17_diameter")
pad17 = body16.newObject("PartDesign::Pad", "Pad016")
pad17.Profile = sketch17
pad17.setExpression("Length", "Params.pad17_length")
pad17.Reversed = True
doc.recompute()

datumplane15 = body16.newObject("PartDesign::Plane", "DatumPlane014")
datumplane15.AttachmentSupport = (doc.getObject("XY_Plane015"), [""])
datumplane15.MapMode = "FlatFace"
datumplane15.AttachmentOffset = App.Placement(V(0, 0, 8), App.Rotation())
draft15 = body16.newObject("PartDesign::Draft", "Draft014")
draft15.Base = (pad17, faces_at(pad17, [(-50.42, -11.22, -27.464)]))
draft15.NeutralPlane = (datumplane15, [""])
draft15.setExpression("Angle", "Params.draft15_angle")
draft15.Reversed = False
doc.recompute()

boolean15 = body.newObject("PartDesign::Boolean", "Boolean014")
boolean15.Type = "Cut"
boolean15.addObjects([body16])
body17 = doc.addObject("PartDesign::Body", "Body016")

# Sketch on XY plane
sketch18 = body17.newObject("Sketcher::SketchObject", "Sketch017")
sketch18.AttachmentSupport = (doc.getObject("XY_Plane016"), [""])
sketch18.MapMode = "FlatFace"
sketch18.AttachmentOffset = App.Placement(V(0, 0, 8), App.Rotation())
sketch18.addGeometry(Part.Circle(V(-35.8, -11.2, 0), V(0, 0, 1), 1.2), False)
sketch18.addConstraint([
    Sketcher.Constraint("Diameter", 0, 2.4),
    Sketcher.Constraint("DistanceX", 0, 3, -1, 1, 35.78),
    Sketcher.Constraint("DistanceY", 0, 3, -1, 1, 11.22),
])
sketch18.setExpression("Constraints[0]", "Params.sketch18_diameter")
pad18 = body17.newObject("PartDesign::Pad", "Pad017")
pad18.Profile = sketch18
pad18.setExpression("Length", "Params.pad18_length")
pad18.Reversed = True
doc.recompute()

datumplane16 = body17.newObject("PartDesign::Plane", "DatumPlane015")
datumplane16.AttachmentSupport = (doc.getObject("XY_Plane016"), [""])
datumplane16.MapMode = "FlatFace"
datumplane16.AttachmentOffset = App.Placement(V(0, 0, 8), App.Rotation())
draft16 = body17.newObject("PartDesign::Draft", "Draft015")
draft16.Base = (pad18, faces_at(pad18, [(-36.98, -11.22, -27.464)]))
draft16.NeutralPlane = (datumplane16, [""])
draft16.setExpression("Angle", "Params.draft16_angle")
draft16.Reversed = False
doc.recompute()

boolean16 = body.newObject("PartDesign::Boolean", "Boolean015")
boolean16.Type = "Cut"
boolean16.addObjects([body17])
body18 = doc.addObject("PartDesign::Body", "Body017")

# Sketch on XY plane
sketch19 = body18.newObject("Sketcher::SketchObject", "Sketch018")
sketch19.AttachmentSupport = (doc.getObject("XY_Plane017"), [""])
sketch19.MapMode = "FlatFace"
sketch19.AttachmentOffset = App.Placement(V(0, 0, 4), App.Rotation())
sketch19.addGeometry(Part.Circle(V(27.7, 30, 0), V(0, 0, 1), 1.2), False)
sketch19.addConstraint([
    Sketcher.Constraint("Diameter", 0, 2.4),
    Sketcher.Constraint("DistanceX", -1, 1, 0, 3, 27.696),
    Sketcher.Constraint("DistanceY", -1, 1, 0, 3, 30.0355),
])
sketch19.setExpression("Constraints[0]", "Params.sketch19_diameter")
pad19 = body18.newObject("PartDesign::Pad", "Pad018")
pad19.Profile = sketch19
pad19.setExpression("Length", "Params.pad19_length")
pad19.Reversed = True
doc.recompute()

datumplane17 = body18.newObject("PartDesign::Plane", "DatumPlane016")
datumplane17.AttachmentSupport = (doc.getObject("XY_Plane017"), [""])
datumplane17.MapMode = "FlatFace"
datumplane17.AttachmentOffset = App.Placement(V(0, 0, 4), App.Rotation())
draft17 = body18.newObject("PartDesign::Draft", "Draft016")
draft17.Base = (pad19, faces_at(pad19, [(26.496, 30.035, -31.292)]))
draft17.NeutralPlane = (datumplane17, [""])
draft17.setExpression("Angle", "Params.draft17_angle")
draft17.Reversed = False
doc.recompute()

boolean17 = body.newObject("PartDesign::Boolean", "Boolean016")
boolean17.Type = "Cut"
boolean17.addObjects([body18])
body19 = doc.addObject("PartDesign::Body", "Body018")

# Sketch on XY plane
sketch20 = body19.newObject("Sketcher::SketchObject", "Sketch019")
sketch20.AttachmentSupport = (doc.getObject("XY_Plane018"), [""])
sketch20.MapMode = "FlatFace"
sketch20.AttachmentOffset = App.Placement(V(0, 0, 4), App.Rotation())
sketch20.addGeometry(Part.Circle(V(27.7, 12.3, 0), V(0, 0, 1), 1.2), False)
sketch20.addConstraint([
    Sketcher.Constraint("Diameter", 0, 2.4),
    Sketcher.Constraint("DistanceX", -1, 1, 0, 3, 27.696),
    Sketcher.Constraint("DistanceY", -1, 1, 0, 3, 12.2555),
])
sketch20.setExpression("Constraints[0]", "Params.sketch20_diameter")
pad20 = body19.newObject("PartDesign::Pad", "Pad019")
pad20.Profile = sketch20
pad20.setExpression("Length", "Params.pad20_length")
pad20.Reversed = True
doc.recompute()

datumplane18 = body19.newObject("PartDesign::Plane", "DatumPlane017")
datumplane18.AttachmentSupport = (doc.getObject("XY_Plane018"), [""])
datumplane18.MapMode = "FlatFace"
datumplane18.AttachmentOffset = App.Placement(V(0, 0, 4), App.Rotation())
draft18 = body19.newObject("PartDesign::Draft", "Draft017")
draft18.Base = (pad20, faces_at(pad20, [(26.496, 12.255, -31.292)]))
draft18.NeutralPlane = (datumplane18, [""])
draft18.setExpression("Angle", "Params.draft18_angle")
draft18.Reversed = False
doc.recompute()

boolean18 = body.newObject("PartDesign::Boolean", "Boolean017")
boolean18.Type = "Cut"
boolean18.addObjects([body19])
body20 = doc.addObject("PartDesign::Body", "Body019")

# Sketch on XY plane
sketch21 = body20.newObject("Sketcher::SketchObject", "Sketch020")
sketch21.AttachmentSupport = (doc.getObject("XY_Plane019"), [""])
sketch21.MapMode = "FlatFace"
sketch21.AttachmentOffset = App.Placement(V(0, 0, 4), App.Rotation())
sketch21.addGeometry(Part.Circle(V(55.6, 12.3, 0), V(0, 0, 1), 1.2), False)
sketch21.addConstraint([
    Sketcher.Constraint("Diameter", 0, 2.4),
    Sketcher.Constraint("DistanceX", -1, 1, 0, 3, 55.636),
    Sketcher.Constraint("DistanceY", -1, 1, 0, 3, 12.2555),
])
sketch21.setExpression("Constraints[0]", "Params.sketch21_diameter")
pad21 = body20.newObject("PartDesign::Pad", "Pad020")
pad21.Profile = sketch21
pad21.setExpression("Length", "Params.pad21_length")
pad21.Reversed = True
doc.recompute()

datumplane19 = body20.newObject("PartDesign::Plane", "DatumPlane018")
datumplane19.AttachmentSupport = (doc.getObject("XY_Plane019"), [""])
datumplane19.MapMode = "FlatFace"
datumplane19.AttachmentOffset = App.Placement(V(0, 0, 4), App.Rotation())
draft19 = body20.newObject("PartDesign::Draft", "Draft018")
draft19.Base = (pad21, faces_at(pad21, [(54.436, 12.255, -31.292)]))
draft19.NeutralPlane = (datumplane19, [""])
draft19.setExpression("Angle", "Params.draft19_angle")
draft19.Reversed = False
doc.recompute()

boolean19 = body.newObject("PartDesign::Boolean", "Boolean018")
boolean19.Type = "Cut"
boolean19.addObjects([body20])

doc.recompute()
